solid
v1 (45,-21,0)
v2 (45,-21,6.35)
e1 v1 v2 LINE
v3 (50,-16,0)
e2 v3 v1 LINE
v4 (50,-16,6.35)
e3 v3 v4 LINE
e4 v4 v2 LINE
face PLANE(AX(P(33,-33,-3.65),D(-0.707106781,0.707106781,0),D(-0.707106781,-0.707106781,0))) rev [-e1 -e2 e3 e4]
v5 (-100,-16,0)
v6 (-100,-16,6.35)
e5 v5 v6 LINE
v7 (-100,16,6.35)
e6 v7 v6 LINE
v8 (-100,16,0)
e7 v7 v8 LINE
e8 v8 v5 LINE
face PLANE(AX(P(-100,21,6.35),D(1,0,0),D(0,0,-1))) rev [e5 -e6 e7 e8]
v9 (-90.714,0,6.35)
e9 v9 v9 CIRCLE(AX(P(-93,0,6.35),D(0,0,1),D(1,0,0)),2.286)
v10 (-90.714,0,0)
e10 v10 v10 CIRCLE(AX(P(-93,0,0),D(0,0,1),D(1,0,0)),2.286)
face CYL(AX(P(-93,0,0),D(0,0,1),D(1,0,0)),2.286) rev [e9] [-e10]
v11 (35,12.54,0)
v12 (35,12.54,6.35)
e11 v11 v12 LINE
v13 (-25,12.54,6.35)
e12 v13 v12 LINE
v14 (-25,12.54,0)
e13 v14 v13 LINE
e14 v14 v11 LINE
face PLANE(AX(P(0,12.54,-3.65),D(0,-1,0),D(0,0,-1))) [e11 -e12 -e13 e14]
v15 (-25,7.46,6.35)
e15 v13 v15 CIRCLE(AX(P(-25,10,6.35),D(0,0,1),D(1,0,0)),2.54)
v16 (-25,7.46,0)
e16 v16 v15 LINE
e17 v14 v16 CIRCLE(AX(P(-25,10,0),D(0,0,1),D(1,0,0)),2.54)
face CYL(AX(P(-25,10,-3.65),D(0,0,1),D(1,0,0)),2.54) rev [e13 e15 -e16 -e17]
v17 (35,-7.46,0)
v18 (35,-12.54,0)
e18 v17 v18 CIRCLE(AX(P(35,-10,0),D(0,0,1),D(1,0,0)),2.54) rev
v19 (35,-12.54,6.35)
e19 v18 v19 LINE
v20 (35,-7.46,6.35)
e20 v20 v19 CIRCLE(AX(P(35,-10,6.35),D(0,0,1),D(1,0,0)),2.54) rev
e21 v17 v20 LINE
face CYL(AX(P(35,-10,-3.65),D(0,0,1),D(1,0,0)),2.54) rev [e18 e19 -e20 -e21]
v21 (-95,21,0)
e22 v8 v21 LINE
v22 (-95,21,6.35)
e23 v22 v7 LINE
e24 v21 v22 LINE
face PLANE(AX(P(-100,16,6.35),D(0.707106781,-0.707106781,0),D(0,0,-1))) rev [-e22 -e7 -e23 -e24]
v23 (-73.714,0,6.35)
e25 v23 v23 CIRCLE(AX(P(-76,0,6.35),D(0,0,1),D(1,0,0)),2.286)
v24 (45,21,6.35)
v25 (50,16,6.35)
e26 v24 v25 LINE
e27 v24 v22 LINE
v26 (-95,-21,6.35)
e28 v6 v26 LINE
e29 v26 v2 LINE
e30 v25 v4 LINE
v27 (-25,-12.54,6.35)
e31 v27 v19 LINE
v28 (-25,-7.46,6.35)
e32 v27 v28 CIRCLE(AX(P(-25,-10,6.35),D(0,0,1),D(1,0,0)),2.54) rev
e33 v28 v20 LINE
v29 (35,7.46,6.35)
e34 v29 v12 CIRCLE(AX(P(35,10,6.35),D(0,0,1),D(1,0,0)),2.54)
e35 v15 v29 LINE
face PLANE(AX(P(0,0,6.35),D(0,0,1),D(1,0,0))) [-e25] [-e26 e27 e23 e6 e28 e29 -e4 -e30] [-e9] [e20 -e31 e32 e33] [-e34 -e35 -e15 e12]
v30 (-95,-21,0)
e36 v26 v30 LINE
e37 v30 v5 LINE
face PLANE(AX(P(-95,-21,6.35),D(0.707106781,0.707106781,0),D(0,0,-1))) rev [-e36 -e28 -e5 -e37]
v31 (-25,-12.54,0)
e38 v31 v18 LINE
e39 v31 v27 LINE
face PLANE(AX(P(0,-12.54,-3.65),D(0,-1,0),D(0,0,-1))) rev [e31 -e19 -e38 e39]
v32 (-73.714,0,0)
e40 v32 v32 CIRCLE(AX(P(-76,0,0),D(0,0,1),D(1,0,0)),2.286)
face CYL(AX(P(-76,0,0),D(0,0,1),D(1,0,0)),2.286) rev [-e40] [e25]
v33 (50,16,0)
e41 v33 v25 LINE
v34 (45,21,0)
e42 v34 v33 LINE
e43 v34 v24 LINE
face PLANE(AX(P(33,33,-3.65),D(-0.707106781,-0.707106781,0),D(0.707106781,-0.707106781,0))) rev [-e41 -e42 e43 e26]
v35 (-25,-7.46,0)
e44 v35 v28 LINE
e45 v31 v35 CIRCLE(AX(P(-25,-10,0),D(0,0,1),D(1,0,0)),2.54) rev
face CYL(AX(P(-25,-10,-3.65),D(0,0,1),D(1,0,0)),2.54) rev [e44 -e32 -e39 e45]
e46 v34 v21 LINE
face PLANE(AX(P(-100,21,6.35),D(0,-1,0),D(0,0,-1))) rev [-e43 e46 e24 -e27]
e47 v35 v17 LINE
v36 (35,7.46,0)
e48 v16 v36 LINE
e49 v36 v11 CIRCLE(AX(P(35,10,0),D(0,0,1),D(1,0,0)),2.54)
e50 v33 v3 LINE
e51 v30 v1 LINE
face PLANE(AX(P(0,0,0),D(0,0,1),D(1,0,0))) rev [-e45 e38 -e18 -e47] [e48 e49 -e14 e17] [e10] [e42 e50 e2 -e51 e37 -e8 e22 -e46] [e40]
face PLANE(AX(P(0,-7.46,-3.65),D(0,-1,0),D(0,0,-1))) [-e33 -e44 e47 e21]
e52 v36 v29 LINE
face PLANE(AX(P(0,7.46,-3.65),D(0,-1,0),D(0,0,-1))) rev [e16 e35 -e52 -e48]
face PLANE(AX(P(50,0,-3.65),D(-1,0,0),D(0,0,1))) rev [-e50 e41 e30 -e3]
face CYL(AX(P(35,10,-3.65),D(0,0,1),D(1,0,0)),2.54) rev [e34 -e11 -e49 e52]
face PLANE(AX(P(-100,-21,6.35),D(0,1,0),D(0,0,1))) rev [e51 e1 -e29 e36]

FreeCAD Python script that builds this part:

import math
import FreeCAD as App
import Part
import Sketcher

V = App.Vector


def edges_at(feature, points):
    """Names of the edges that pass closest to the given points."""
    edges = feature.Shape.Edges
    near = lambda p: min(range(len(edges)), key=lambda i: edges[i].distToShape(Part.Vertex(*p))[0])
    return sorted({f"Edge{near(p) + 1}" for p in points})


def add_polygon(sketch, points):
    """Adds a closed chain of lines whose ends are joined by coincident constraints."""
    first, n = sketch.GeometryCount, len(points)
    for a, b in zip(points, points[1:] + points[:1]):
        sketch.addGeometry(Part.LineSegment(App.Vector(*a, 0), App.Vector(*b, 0)), False)
    for i in range(n):
        sketch.addConstraint(Sketcher.Constraint("Coincident", first + i, 2, first + (i + 1) % n, 1))

doc = App.newDocument("Part")
body = doc.addObject("PartDesign::Body", "Body")

sketch1 = body.newObject("Sketcher::SketchObject", "Sketch")
sketch1.AttachmentSupport = (doc.getObject("XY_Plane"), [""])
sketch1.MapMode = "FlatFace"
add_polygon(sketch1, [(-100, 21), (-100, -21), (100, -21), (100, 21)])
sketch1.addConstraint([
    Sketcher.Constraint("Vertical", 0),
    Sketcher.Constraint("Horizontal", 1),
    Sketcher.Constraint("Vertical", 2),
    Sketcher.Constraint("Horizontal", 3),
    Sketcher.Constraint("Symmetric", 0, 2, 2, 2, -1, 1),
    Sketcher.Constraint("DistanceX", 1, 1, 1, 2, 200.0),
    Sketcher.Constraint("DistanceY", 0, 2, 0, 1, 42.0),
])
pad1 = body.newObject("PartDesign::Pad", "Pad")
pad1.Profile = sketch1
pad1.Length = 6.35

sketch2 = body.newObject("Sketcher::SketchObject", "Sketch001")
sketch2.AttachmentSupport = (doc.getObject("XY_Plane"), [""])
sketch2.MapMode = "FlatFace"
sketch2.AttachmentOffset = App.Placement(V(0, 0, 6.35), App.Rotation())
sketch2.addGeometry(Part.Circle(V(-76, 0, 0), V(0, 0, 1), 2.3), False)
sketch2.addConstraint([
    Sketcher.Constraint("PointOnObject", 0, 3, -1),
    Sketcher.Constraint("Diameter", 0, 4.572),
    Sketcher.Constraint("DistanceX", 0, 3, -1, 1, 76.0),
])
pocket1 = body.newObject("PartDesign::Pocket", "Pocket")
pocket1.Profile = sketch2
pocket1.Type = "ThroughAll"
doc.recompute()

chamfer = body.newObject("PartDesign::Chamfer", "Chamfer")
chamfer.Base = (pocket1, edges_at(pocket1, [
    (100, -21, 3.175),
    (-100, -21, 3.175),
    (-100, 21, 3.175),
    (100, 21, 3.175),
]))
chamfer.Size = 5

sketch3 = body.newObject("Sketcher::SketchObject", "Sketch002")
sketch3.AttachmentSupport = (doc.getObject("XY_Plane"), [""])
sketch3.MapMode = "FlatFace"
sketch3.AttachmentOffset = App.Placement(V(0, 0, 6.35), App.Rotation())
sketch3.addGeometry(Part.Circle(V(80, 0, 0), V(0, 0, 1), 2.3), False)
sketch3.addConstraint([
    Sketcher.Constraint("PointOnObject", 0, 3, -1),
    Sketcher.Constraint("Diameter", 0, 4.572),
    Sketcher.Constraint("DistanceX", -1, 1, 0, 3, 80.0),
])
pocket2 = body.newObject("PartDesign::Pocket", "Pocket001")
pocket2.Profile = sketch3
pocket2.Type = "ThroughAll"

sketch4 = body.newObject("Sketcher::SketchObject", "Sketch003")
sketch4.AttachmentSupport = (doc.getObject("XY_Plane"), [""])
sketch4.MapMode = "FlatFace"
sketch4.AttachmentOffset = App.Placement(V(0, 0, 6.35), App.Rotation())
sketch4.addGeometry(Part.Circle(V(-93, 0, 0), V(0, 0, 1), 2.3), False)
sketch4.addConstraint([
    Sketcher.Constraint("PointOnObject", 0, 3, -1),
    Sketcher.Constraint("Diameter", 0, 4.572),
    Sketcher.Constraint("DistanceX", 0, 3, -1, 1, 93.0),
])
pocket3 = body.newObject("PartDesign::Pocket", "Pocket002")
pocket3.Profile = sketch4
pocket3.Type = "ThroughAll"

sketch5 = body.newObject("Sketcher::SketchObject", "Sketch004")
sketch5.AttachmentSupport = (doc.getObject("XY_Plane"), [""])
sketch5.MapMode = "FlatFace"
sketch5.AttachmentOffset = App.Placement(V(0, 0, 6.35), App.Rotation())
add_polygon(sketch5, [(45, 21), (50, 16), (50, -16), (45, -21), (95, -21), (100, -16), (100, 16), (95, 21)])
sketch5.addGeometry(Part.Circle(V(80, 0, 0), V(0, 0, 1), 2.3), False)
sketch5.addGeometry(Part.ArcOfCircle(Part.Circle(V(35, -10, 0), V(0, 0, 1), 2.5), math.radians(-90), math.radians(90)), False)
sketch5.addGeometry(Part.LineSegment(V(35, -7.5, 0), V(-25, -7.5, 0)), False)
sketch5.addGeometry(Part.ArcOfCircle(Part.Circle(V(-25, -10, 0), V(0, 0, 1), 2.5), math.radians(90), math.radians(270)), False)
sketch5.addGeometry(Part.LineSegment(V(-25, -12.5, 0), V(35, -12.5, 0)), False)
sketch5.addGeometry(Part.LineSegment(V(-25, 7.5, 0), V(35, 7.5, 0)), False)
sketch5.addGeometry(Part.ArcOfCircle(Part.Circle(V(35, 10, 0), V(0, 0, 1), 2.5), math.radians(-90), math.radians(90)), False)
sketch5.addGeometry(Part.LineSegment(V(35, 12.5, 0), V(-25, 12.5, 0)), False)
sketch5.addGeometry(Part.ArcOfCircle(Part.Circle(V(-25, 10, 0), V(0, 0, 1), 2.5), math.radians(90), math.radians(270)), False)
sketch5.addConstraint([
    Sketcher.Constraint("Tangent", 9, 2, 10, 1),
    Sketcher.Constraint("Tangent", 10, 2, 11, 1),
    Sketcher.Constraint("Tangent", 11, 2, 12, 1),
    Sketcher.Constraint("Tangent", 12, 2, 9, 1),
    Sketcher.Constraint("Tangent", 13, 2, 14, 1),
    Sketcher.Constraint("Tangent", 14, 2, 15, 1),
    Sketcher.Constraint("Tangent", 15, 2, 16, 1),
    Sketcher.Constraint("Tangent", 16, 2, 13, 1),
    Sketcher.Constraint("Vertical", 1),
    Sketcher.Constraint("Horizontal", 3),
    Sketcher.Constraint("Vertical", 5),
    Sketcher.Constraint("Horizontal", 7),
    Sketcher.Constraint("Horizontal", 10),
    Sketcher.Constraint("Horizontal", 12),
    Sketcher.Constraint("Horizontal", 13),
    Sketcher.Constraint("Horizontal", 15),
    Sketcher.Constraint("Equal", 11, 14),
    Sketcher.Constraint("Symmetric", 9, 3, 14, 3, -1),
    Sketcher.Constraint("Symmetric", 3, 2, 6, 2, -1),
    Sketcher.Constraint("PointOnObject", 8, 3, -1),
    Sketcher.Constraint("Perpendicular", 0, 2),
    Sketcher.Constraint("Parallel", 2, 4),
    Sketcher.Constraint("Perpendicular", 4, 6),
    Sketcher.Constraint("Horizontal", 1, 2, 4, 2),
    Sketcher.Constraint("Horizontal", 0, 2, 5, 2),
    Sketcher.Constraint("Vertical", 11, 3, 16, 3),
    Sketcher.Constraint("Equal", 0, 2),
    Sketcher.Constraint("DistanceX", 3, 1, 3, 2, 50.0),
    Sketcher.Constraint("DistanceX", 10, 2, 10, 1, 60.0),
    Sketcher.Constraint("DistanceY", 1, 2, 1, 1, 32.0),
    Sketcher.Constraint("Radius", 9, 2.54),
    Sketcher.Constraint("Diameter", 8, 4.572),
    Sketcher.Constraint("DistanceX", -1, 1, 8, 3, 80.0),
    Sketcher.Constraint("DistanceX", -1, 1, 9, 3, 35.0),
    Sketcher.Constraint("DistanceY", 9, 3, -1, 1, 10.0),
    Sketcher.Constraint("DistanceX", -1, 1, 0, 2, 50.0),
    Sketcher.Constraint("DistanceX", -1, 1, 2, 2, 45.0),
])
pocket4 = body.newObject("PartDesign::Pocket", "Pocket003")
pocket4.Profile = sketch5
pocket4.Length = 10

doc.recompute()
